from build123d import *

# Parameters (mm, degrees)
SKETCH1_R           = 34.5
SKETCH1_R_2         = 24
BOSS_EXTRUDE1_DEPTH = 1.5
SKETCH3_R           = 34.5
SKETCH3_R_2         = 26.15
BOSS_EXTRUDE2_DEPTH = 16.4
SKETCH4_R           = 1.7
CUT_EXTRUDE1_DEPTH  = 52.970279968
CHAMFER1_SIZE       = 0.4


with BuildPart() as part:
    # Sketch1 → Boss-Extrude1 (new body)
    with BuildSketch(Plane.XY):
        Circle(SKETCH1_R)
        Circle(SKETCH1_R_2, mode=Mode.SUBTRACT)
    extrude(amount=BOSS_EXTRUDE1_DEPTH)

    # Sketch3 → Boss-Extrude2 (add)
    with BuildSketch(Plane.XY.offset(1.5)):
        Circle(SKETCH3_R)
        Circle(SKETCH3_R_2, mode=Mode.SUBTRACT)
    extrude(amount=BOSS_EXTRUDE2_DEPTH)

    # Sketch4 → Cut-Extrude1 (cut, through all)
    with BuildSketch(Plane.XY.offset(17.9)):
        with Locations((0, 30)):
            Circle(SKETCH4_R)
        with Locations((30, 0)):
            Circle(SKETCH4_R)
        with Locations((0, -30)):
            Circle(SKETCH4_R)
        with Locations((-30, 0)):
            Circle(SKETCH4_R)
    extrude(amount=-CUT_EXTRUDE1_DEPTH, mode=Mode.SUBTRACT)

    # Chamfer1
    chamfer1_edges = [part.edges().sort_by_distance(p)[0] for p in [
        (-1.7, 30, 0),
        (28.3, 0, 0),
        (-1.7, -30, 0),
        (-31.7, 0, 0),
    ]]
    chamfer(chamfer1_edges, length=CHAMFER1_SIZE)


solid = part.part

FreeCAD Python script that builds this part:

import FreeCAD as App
import Part
import Sketcher
from FreeCAD import Vector
Q = App.Units.Quantity


def edges_at(feature, points):
    """Names of the edges that pass closest to the given points."""
    edges = feature.Shape.Edges
    near = lambda p: min(range(len(edges)), key=lambda i: edges[i].distToShape(Part.Vertex(*p))[0])
    return sorted({f"Edge{near(p) + 1}" for p in points})

doc = App.newDocument("Part")
body = doc.addObject("PartDesign::Body", "Body")

# Sketch on XY plane
sketch1 = body.newObject("Sketcher::SketchObject", "Sketch")
sketch1.AttachmentSupport = (doc.getObject("XY_Plane"), [""])
sketch1.MapMode = "FlatFace"
sketch1.addGeometry(Part.Circle(Vector(0, 0, 0), Vector(0, 0, 1), 34), False)
sketch1.addGeometry(Part.Circle(Vector(0, 0, 0), Vector(0, 0, 1), 24), False)
sketch1.addConstraint(Sketcher.Constraint("Coincident", 0, 3, -1, 1))
sketch1.addConstraint(Sketcher.Constraint("Coincident", 1, 3, -1, 1))
sketch1.addConstraint(Sketcher.Constraint("Diameter", 0, Q("69 mm")))
sketch1.addConstraint(Sketcher.Constraint("Diameter", 1, Q("48 mm")))
pad1 = body.newObject("PartDesign::Pad", "Pad")
pad1.Profile = sketch1
pad1.Length = 1.5

# Sketch on XY plane
sketch2 = body.newObject("Sketcher::SketchObject", "Sketch001")
sketch2.AttachmentSupport = (doc.getObject("XY_Plane"), [""])
sketch2.MapMode = "FlatFace"
sketch2.AttachmentOffset = App.Placement(Vector(0, 0, 1.5), App.Rotation())
sketch2.addGeometry(Part.Circle(Vector(0, 0, 0), Vector(0, 0, 1), 34), False)
sketch2.addGeometry(Part.Circle(Vector(0, 0, 0), Vector(0, 0, 1), 26), False)
sketch2.addConstraint(Sketcher.Constraint("Coincident", 0, 3, -1, 1))
sketch2.addConstraint(Sketcher.Constraint("Coincident", 1, 3, -1, 1))
sketch2.addConstraint(Sketcher.Constraint("Diameter", 0, Q("69 mm")))
sketch2.addConstraint(Sketcher.Constraint("Diameter", 1, Q("52.3 mm")))
pad2 = body.newObject("PartDesign::Pad", "Pad001")
pad2.Profile = sketch2
pad2.Length = 16.4

# Sketch on XY plane
sketch3 = body.newObject("Sketcher::SketchObject", "Sketch002")
sketch3.AttachmentSupport = (doc.getObject("XY_Plane"), [""])
sketch3.MapMode = "FlatFace"
sketch3.AttachmentOffset = App.Placement(Vector(0, 0, 17.9), App.Rotation())
sketch3.addGeometry(Part.Circle(Vector(0, 30, 0), Vector(0, 0, 1), 1.7), False)
sketch3.addGeometry(Part.Circle(Vector(30, 0, 0), Vector(0, 0, 1), 1.7), False)
sketch3.addGeometry(Part.Circle(Vector(0, -30, 0), Vector(0, 0, 1), 1.7), False)
sketch3.addGeometry(Part.Circle(Vector(-30, 0, 0), Vector(0, 0, 1), 1.7), False)
sketch3.addConstraint(Sketcher.Constraint("Equal", 0, 1))
sketch3.addConstraint(Sketcher.Constraint("Equal", 1, 2))
sketch3.addConstraint(Sketcher.Constraint("Equal", 2, 3))
sketch3.addConstraint(Sketcher.Constraint("Symmetric", 0, 3, 2, 3, -1, 1))
sketch3.addConstraint(Sketcher.Constraint("Symmetric", 1, 3, 3, 3, -1, 1))
sketch3.addConstraint(Sketcher.Constraint("PointOnObject", 0, 3, -2))
sketch3.addConstraint(Sketcher.Constraint("PointOnObject", 1, 3, -1))
sketch3.addConstraint(Sketcher.Constraint("Diameter", 0, Q("3.4 mm")))
sketch3.addConstraint(Sketcher.Constraint("DistanceY", -1, 1, 0, 3, Q("30 mm")))
sketch3.addConstraint(Sketcher.Constraint("DistanceX", -1, 1, 1, 3, Q("30 mm")))
pocket1 = body.newObject("PartDesign::Pocket", "Pocket")
pocket1.Profile = sketch3
pocket1.Type = "ThroughAll"
doc.recompute()

chamfer = body.newObject("PartDesign::Chamfer", "Chamfer")
chamfer.Base = (pocket1, edges_at(pocket1, [
    (-1.7, 30, 0),
    (28.3, 0, 0),
    (-1.7, -30, 0),
    (-31.7, 0, 0),
]))
chamfer.Size = 0.4

doc.recompute()
